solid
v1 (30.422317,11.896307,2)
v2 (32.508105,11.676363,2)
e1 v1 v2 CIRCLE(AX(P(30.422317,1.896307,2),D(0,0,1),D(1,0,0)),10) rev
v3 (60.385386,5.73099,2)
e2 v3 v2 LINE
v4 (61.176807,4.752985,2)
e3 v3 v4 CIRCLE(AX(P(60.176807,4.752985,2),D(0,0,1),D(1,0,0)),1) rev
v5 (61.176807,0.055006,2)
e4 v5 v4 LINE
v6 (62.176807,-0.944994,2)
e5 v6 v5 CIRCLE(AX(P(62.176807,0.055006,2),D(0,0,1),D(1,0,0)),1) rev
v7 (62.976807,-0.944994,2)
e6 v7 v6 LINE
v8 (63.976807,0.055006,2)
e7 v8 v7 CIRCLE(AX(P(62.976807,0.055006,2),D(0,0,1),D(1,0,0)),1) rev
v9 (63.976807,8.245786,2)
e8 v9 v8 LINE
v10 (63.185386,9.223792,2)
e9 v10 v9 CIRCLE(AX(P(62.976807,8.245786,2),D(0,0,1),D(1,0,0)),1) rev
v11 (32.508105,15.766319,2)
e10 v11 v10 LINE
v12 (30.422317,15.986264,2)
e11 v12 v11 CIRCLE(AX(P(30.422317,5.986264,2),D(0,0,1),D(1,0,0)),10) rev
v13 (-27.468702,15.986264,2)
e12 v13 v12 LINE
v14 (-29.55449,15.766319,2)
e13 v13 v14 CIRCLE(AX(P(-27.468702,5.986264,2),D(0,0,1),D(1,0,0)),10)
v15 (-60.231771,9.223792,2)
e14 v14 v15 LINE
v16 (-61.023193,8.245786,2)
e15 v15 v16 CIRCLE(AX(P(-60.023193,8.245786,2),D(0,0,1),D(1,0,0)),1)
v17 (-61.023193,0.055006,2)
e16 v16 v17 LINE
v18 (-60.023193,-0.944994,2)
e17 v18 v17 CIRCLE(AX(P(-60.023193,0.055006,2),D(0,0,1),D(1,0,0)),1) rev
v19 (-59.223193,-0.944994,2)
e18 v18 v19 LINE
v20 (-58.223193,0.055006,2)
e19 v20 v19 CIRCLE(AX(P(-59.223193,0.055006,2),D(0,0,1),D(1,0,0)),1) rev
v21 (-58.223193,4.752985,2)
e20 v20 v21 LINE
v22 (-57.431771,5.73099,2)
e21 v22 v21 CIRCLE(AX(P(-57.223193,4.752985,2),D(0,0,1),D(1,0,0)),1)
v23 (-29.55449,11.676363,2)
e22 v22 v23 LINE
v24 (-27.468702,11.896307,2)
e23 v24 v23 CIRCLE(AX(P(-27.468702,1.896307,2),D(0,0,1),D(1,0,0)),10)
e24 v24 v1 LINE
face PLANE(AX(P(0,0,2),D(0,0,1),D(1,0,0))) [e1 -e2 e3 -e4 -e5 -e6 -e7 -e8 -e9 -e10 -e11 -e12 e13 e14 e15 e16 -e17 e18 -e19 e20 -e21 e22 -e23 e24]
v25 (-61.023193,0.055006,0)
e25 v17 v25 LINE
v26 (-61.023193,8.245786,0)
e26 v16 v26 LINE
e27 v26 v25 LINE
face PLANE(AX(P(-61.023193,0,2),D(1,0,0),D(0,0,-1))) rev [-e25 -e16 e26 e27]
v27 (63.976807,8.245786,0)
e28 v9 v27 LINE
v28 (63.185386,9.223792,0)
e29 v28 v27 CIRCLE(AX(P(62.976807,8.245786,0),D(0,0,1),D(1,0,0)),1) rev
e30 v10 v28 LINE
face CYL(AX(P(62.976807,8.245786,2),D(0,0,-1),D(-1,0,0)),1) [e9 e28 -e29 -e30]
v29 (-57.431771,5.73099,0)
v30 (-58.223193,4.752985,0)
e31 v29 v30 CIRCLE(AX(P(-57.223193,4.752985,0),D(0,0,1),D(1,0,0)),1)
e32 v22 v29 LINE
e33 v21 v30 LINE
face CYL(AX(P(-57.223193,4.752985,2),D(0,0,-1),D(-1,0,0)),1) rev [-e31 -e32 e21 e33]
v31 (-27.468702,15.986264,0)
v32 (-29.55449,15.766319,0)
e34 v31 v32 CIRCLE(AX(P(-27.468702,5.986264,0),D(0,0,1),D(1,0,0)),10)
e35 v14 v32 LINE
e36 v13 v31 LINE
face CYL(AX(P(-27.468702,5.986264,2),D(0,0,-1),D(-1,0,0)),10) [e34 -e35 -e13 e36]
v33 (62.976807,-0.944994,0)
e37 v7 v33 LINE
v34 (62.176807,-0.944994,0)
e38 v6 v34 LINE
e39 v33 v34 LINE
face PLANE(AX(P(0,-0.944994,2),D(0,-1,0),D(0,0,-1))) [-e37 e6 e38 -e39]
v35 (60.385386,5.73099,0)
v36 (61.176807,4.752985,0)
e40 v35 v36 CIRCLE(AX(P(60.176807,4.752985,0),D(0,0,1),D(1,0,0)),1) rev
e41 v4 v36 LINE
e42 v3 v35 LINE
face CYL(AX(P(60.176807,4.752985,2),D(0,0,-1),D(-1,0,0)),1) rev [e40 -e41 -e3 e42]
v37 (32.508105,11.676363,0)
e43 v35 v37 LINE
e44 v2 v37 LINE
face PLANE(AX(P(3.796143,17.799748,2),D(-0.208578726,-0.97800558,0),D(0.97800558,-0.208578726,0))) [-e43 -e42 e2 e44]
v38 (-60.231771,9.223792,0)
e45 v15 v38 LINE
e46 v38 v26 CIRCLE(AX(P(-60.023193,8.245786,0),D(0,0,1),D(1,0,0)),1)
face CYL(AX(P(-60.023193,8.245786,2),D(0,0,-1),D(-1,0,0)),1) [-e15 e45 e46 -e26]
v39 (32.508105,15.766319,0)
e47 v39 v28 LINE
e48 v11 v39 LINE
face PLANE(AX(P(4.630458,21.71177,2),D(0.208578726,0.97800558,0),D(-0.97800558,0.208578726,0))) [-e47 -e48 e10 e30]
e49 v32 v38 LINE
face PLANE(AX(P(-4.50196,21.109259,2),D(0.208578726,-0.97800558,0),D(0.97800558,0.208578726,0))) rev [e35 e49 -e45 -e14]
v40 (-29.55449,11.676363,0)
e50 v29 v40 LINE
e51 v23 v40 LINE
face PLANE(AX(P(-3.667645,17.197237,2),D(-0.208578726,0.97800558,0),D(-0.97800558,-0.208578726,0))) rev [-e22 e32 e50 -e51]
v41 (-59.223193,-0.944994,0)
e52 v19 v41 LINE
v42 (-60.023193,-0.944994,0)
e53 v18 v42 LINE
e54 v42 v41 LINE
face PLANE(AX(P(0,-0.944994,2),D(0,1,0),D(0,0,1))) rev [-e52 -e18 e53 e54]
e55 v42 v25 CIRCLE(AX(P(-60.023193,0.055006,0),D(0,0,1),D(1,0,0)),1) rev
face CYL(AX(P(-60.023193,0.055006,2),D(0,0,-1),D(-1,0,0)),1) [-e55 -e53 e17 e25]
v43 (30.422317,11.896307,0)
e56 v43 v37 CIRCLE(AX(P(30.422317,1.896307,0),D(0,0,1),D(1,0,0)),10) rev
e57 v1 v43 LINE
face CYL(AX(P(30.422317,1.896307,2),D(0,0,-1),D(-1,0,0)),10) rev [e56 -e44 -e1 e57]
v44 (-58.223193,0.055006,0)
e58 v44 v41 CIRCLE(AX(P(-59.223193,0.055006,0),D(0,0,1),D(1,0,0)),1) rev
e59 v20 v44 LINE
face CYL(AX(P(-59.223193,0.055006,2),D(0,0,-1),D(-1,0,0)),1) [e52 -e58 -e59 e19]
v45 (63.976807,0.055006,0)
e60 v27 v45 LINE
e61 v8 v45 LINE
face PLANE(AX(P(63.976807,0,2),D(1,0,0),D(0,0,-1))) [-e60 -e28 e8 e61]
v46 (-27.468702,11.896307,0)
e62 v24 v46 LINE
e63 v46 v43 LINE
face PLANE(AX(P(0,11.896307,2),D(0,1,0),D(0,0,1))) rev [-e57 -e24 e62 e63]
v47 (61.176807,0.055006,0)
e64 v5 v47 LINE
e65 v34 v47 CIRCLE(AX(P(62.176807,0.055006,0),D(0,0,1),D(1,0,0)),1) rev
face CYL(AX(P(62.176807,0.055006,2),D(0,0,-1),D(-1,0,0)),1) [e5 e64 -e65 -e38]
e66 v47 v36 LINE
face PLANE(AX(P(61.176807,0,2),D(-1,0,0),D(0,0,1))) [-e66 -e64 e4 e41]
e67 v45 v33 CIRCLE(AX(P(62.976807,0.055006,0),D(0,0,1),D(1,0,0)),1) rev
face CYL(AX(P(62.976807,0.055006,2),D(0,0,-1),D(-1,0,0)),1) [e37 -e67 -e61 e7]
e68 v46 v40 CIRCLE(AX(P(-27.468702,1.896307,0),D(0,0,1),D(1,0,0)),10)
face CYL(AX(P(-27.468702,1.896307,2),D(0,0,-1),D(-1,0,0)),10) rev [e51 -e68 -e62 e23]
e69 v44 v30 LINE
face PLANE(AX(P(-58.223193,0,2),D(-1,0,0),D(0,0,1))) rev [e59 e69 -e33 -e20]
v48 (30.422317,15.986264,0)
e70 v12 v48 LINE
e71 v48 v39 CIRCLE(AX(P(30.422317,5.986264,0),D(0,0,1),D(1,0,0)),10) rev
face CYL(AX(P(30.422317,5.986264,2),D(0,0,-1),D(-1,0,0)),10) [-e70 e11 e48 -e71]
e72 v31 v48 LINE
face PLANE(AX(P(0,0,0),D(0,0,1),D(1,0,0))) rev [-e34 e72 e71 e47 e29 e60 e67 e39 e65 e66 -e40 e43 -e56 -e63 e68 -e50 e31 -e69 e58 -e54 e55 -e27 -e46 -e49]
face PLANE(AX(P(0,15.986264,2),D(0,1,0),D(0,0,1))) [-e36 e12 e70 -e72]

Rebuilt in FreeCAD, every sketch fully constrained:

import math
import FreeCAD as App
import Part
import Sketcher
from FreeCAD import Vector

doc = App.newDocument("Part")
body = doc.addObject("PartDesign::Body", "Body")

sketch1 = body.newObject("Sketcher::SketchObject", "Sketch")
sketch1.AttachmentSupport = (doc.getObject("XY_Plane"), [""])
sketch1.MapMode = "FlatFace"
sketch1.addGeometry([
    Part.LineSegment(Vector(30.4, 16, 0), Vector(-27.5, 16, 0)),
    Part.ArcOfCircle(Part.Circle(Vector(-27.5, 6, 0), Vector(0, 0, 1), 10), math.radians(90), math.radians(102.04)),
    Part.LineSegment(Vector(-29.6, 15.8, 0), Vector(-60.2, 9.2, 0)),
    Part.ArcOfCircle(Part.Circle(Vector(-60, 8.2, 0), Vector(0, 0, 1), 1), math.radians(102), math.radians(180)),
    Part.LineSegment(Vector(-61, 8.2, 0), Vector(-61, 0.1, 0)),
    Part.ArcOfCircle(Part.Circle(Vector(-60, 0.1, 0), Vector(0, 0, 1), 1), math.radians(-180), math.radians(-90)),
    Part.LineSegment(Vector(-60, -0.9, 0), Vector(-59.2, -0.9, 0)),
    Part.ArcOfCircle(Part.Circle(Vector(-59.2, 0.1, 0), Vector(0, 0, 1), 1), math.radians(-90), math.radians(0)),
    Part.LineSegment(Vector(-58.2, 0.1, 0), Vector(-58.2, 4.8, 0)),
    Part.ArcOfCircle(Part.Circle(Vector(-57.2, 4.8, 0), Vector(0, 0, 1), 1), math.radians(102), math.radians(180)),
    Part.LineSegment(Vector(-57.4, 5.7, 0), Vector(-29.6, 11.7, 0)),
    Part.ArcOfCircle(Part.Circle(Vector(-27.5, 1.9, 0), Vector(0, 0, 1), 10), math.radians(90), math.radians(102.04)),
    Part.LineSegment(Vector(-27.5, 11.9, 0), Vector(30.4, 11.9, 0)),
    Part.ArcOfCircle(Part.Circle(Vector(30.4, 1.9, 0), Vector(0, 0, 1), 10), math.radians(77.96), math.radians(90)),
    Part.LineSegment(Vector(32.5, 11.7, 0), Vector(60.4, 5.7, 0)),
    Part.ArcOfCircle(Part.Circle(Vector(60.2, 4.8, 0), Vector(0, 0, 1), 1), math.radians(0), math.radians(78)),
    Part.LineSegment(Vector(61.2, 4.8, 0), Vector(61.2, 0.1, 0)),
    Part.ArcOfCircle(Part.Circle(Vector(62.2, 0.1, 0), Vector(0, 0, 1), 1), math.radians(-180), math.radians(-90)),
    Part.LineSegment(Vector(62.2, -0.9, 0), Vector(63, -0.9, 0)),
    Part.ArcOfCircle(Part.Circle(Vector(63, 0.1, 0), Vector(0, 0, 1), 1), math.radians(-90), math.radians(0)),
    Part.LineSegment(Vector(64, 0.1, 0), Vector(64, 8.2, 0)),
    Part.ArcOfCircle(Part.Circle(Vector(63, 8.2, 0), Vector(0, 0, 1), 1), math.radians(0), math.radians(78)),
    Part.LineSegment(Vector(63.2, 9.2, 0), Vector(32.5, 15.8, 0)),
    Part.ArcOfCircle(Part.Circle(Vector(30.4, 6, 0), Vector(0, 0, 1), 10), math.radians(77.96), math.radians(90)),
], False)
sketch1.addConstraint([
    Sketcher.Constraint("Tangent", 0, 2, 1, 1),
    Sketcher.Constraint("Tangent", 1, 2, 2, 1),
    Sketcher.Constraint("Tangent", 2, 2, 3, 1),
    Sketcher.Constraint("Tangent", 3, 2, 4, 1),
    Sketcher.Constraint("Tangent", 4, 2, 5, 1),
    Sketcher.Constraint("Tangent", 5, 2, 6, 1),
    Sketcher.Constraint("Tangent", 6, 2, 7, 1),
    Sketcher.Constraint("Tangent", 7, 2, 8, 1),
    Sketcher.Constraint("Tangent", 8, 2, 9, 2),
    Sketcher.Constraint("Tangent", 9, 1, 10, 1),
    Sketcher.Constraint("Tangent", 10, 2, 11, 2),
    Sketcher.Constraint("Tangent", 11, 1, 12, 1),
    Sketcher.Constraint("Tangent", 12, 2, 13, 2),
    Sketcher.Constraint("Tangent", 13, 1, 14, 1),
    Sketcher.Constraint("Tangent", 14, 2, 15, 2),
    Sketcher.Constraint("Tangent", 15, 1, 16, 1),
    Sketcher.Constraint("Tangent", 16, 2, 17, 1),
    Sketcher.Constraint("Tangent", 17, 2, 18, 1),
    Sketcher.Constraint("Tangent", 18, 2, 19, 1),
    Sketcher.Constraint("Tangent", 19, 2, 20, 1),
    Sketcher.Constraint("Tangent", 20, 2, 21, 1),
    Sketcher.Constraint("Tangent", 21, 2, 22, 1),
    Sketcher.Constraint("Tangent", 22, 2, 23, 1),
    Sketcher.Constraint("Tangent", 23, 2, 0, 1),
    Sketcher.Constraint("Horizontal", 0),
    Sketcher.Constraint("Vertical", 4),
    Sketcher.Constraint("Horizontal", 6),
    Sketcher.Constraint("Vertical", 8),
    Sketcher.Constraint("Horizontal", 12),
    Sketcher.Constraint("Vertical", 16),
    Sketcher.Constraint("Horizontal", 18),
    Sketcher.Constraint("Vertical", 20),
    Sketcher.Constraint("Equal", 3, 5),
    Sketcher.Constraint("Equal", 5, 7),
    Sketcher.Constraint("Equal", 7, 9),
    Sketcher.Constraint("Equal", 1, 11),
    Sketcher.Constraint("Equal", 11, 13),
    Sketcher.Constraint("Equal", 9, 15),
    Sketcher.Constraint("Equal", 15, 17),
    Sketcher.Constraint("Equal", 17, 19),
    Sketcher.Constraint("Equal", 19, 21),
    Sketcher.Constraint("Equal", 13, 23),
    Sketcher.Constraint("Parallel", 2, 10),
    Sketcher.Constraint("Parallel", 14, 22),
    Sketcher.Constraint("Horizontal", 9, 3, 15, 3),
    Sketcher.Constraint("Horizontal", 7, 3, 17, 3),
    Sketcher.Constraint("Horizontal", 3, 3, 21, 3),
    Sketcher.Constraint("Horizontal", 10, 2, 13, 1),
    Sketcher.Constraint("Vertical", 1, 3, 11, 3),
    Sketcher.Constraint("Vertical", 13, 3, 23, 3),
    Sketcher.Constraint("Radius", 1, 10.0),
    Sketcher.Constraint("Radius", 3, 1.0),
    Sketcher.Constraint("DistanceX", 6, 1, 6, 2, 0.8),
    Sketcher.Constraint("DistanceX", 9, 3, 15, 3, 117.4),
    Sketcher.Constraint("DistanceX", 0, 2, 0, 1, 57.89102),
    Sketcher.Constraint("DistanceY", 4, 2, 4, 1, 8.19078),
    Sketcher.Constraint("DistanceY", 8, 1, 8, 2, 4.697979),
    Sketcher.Constraint("DistanceY", 7, 3, 11, 3, 1.841301),
    Sketcher.Constraint("DistanceX", 1, 2, -1, 1, 29.55449),
    Sketcher.Constraint("DistanceY", -1, 1, 1, 2, 15.766319),
])
pad1 = body.newObject("PartDesign::Pad", "Pad")
pad1.Profile = sketch1
pad1.Length = 2

doc.recompute()
